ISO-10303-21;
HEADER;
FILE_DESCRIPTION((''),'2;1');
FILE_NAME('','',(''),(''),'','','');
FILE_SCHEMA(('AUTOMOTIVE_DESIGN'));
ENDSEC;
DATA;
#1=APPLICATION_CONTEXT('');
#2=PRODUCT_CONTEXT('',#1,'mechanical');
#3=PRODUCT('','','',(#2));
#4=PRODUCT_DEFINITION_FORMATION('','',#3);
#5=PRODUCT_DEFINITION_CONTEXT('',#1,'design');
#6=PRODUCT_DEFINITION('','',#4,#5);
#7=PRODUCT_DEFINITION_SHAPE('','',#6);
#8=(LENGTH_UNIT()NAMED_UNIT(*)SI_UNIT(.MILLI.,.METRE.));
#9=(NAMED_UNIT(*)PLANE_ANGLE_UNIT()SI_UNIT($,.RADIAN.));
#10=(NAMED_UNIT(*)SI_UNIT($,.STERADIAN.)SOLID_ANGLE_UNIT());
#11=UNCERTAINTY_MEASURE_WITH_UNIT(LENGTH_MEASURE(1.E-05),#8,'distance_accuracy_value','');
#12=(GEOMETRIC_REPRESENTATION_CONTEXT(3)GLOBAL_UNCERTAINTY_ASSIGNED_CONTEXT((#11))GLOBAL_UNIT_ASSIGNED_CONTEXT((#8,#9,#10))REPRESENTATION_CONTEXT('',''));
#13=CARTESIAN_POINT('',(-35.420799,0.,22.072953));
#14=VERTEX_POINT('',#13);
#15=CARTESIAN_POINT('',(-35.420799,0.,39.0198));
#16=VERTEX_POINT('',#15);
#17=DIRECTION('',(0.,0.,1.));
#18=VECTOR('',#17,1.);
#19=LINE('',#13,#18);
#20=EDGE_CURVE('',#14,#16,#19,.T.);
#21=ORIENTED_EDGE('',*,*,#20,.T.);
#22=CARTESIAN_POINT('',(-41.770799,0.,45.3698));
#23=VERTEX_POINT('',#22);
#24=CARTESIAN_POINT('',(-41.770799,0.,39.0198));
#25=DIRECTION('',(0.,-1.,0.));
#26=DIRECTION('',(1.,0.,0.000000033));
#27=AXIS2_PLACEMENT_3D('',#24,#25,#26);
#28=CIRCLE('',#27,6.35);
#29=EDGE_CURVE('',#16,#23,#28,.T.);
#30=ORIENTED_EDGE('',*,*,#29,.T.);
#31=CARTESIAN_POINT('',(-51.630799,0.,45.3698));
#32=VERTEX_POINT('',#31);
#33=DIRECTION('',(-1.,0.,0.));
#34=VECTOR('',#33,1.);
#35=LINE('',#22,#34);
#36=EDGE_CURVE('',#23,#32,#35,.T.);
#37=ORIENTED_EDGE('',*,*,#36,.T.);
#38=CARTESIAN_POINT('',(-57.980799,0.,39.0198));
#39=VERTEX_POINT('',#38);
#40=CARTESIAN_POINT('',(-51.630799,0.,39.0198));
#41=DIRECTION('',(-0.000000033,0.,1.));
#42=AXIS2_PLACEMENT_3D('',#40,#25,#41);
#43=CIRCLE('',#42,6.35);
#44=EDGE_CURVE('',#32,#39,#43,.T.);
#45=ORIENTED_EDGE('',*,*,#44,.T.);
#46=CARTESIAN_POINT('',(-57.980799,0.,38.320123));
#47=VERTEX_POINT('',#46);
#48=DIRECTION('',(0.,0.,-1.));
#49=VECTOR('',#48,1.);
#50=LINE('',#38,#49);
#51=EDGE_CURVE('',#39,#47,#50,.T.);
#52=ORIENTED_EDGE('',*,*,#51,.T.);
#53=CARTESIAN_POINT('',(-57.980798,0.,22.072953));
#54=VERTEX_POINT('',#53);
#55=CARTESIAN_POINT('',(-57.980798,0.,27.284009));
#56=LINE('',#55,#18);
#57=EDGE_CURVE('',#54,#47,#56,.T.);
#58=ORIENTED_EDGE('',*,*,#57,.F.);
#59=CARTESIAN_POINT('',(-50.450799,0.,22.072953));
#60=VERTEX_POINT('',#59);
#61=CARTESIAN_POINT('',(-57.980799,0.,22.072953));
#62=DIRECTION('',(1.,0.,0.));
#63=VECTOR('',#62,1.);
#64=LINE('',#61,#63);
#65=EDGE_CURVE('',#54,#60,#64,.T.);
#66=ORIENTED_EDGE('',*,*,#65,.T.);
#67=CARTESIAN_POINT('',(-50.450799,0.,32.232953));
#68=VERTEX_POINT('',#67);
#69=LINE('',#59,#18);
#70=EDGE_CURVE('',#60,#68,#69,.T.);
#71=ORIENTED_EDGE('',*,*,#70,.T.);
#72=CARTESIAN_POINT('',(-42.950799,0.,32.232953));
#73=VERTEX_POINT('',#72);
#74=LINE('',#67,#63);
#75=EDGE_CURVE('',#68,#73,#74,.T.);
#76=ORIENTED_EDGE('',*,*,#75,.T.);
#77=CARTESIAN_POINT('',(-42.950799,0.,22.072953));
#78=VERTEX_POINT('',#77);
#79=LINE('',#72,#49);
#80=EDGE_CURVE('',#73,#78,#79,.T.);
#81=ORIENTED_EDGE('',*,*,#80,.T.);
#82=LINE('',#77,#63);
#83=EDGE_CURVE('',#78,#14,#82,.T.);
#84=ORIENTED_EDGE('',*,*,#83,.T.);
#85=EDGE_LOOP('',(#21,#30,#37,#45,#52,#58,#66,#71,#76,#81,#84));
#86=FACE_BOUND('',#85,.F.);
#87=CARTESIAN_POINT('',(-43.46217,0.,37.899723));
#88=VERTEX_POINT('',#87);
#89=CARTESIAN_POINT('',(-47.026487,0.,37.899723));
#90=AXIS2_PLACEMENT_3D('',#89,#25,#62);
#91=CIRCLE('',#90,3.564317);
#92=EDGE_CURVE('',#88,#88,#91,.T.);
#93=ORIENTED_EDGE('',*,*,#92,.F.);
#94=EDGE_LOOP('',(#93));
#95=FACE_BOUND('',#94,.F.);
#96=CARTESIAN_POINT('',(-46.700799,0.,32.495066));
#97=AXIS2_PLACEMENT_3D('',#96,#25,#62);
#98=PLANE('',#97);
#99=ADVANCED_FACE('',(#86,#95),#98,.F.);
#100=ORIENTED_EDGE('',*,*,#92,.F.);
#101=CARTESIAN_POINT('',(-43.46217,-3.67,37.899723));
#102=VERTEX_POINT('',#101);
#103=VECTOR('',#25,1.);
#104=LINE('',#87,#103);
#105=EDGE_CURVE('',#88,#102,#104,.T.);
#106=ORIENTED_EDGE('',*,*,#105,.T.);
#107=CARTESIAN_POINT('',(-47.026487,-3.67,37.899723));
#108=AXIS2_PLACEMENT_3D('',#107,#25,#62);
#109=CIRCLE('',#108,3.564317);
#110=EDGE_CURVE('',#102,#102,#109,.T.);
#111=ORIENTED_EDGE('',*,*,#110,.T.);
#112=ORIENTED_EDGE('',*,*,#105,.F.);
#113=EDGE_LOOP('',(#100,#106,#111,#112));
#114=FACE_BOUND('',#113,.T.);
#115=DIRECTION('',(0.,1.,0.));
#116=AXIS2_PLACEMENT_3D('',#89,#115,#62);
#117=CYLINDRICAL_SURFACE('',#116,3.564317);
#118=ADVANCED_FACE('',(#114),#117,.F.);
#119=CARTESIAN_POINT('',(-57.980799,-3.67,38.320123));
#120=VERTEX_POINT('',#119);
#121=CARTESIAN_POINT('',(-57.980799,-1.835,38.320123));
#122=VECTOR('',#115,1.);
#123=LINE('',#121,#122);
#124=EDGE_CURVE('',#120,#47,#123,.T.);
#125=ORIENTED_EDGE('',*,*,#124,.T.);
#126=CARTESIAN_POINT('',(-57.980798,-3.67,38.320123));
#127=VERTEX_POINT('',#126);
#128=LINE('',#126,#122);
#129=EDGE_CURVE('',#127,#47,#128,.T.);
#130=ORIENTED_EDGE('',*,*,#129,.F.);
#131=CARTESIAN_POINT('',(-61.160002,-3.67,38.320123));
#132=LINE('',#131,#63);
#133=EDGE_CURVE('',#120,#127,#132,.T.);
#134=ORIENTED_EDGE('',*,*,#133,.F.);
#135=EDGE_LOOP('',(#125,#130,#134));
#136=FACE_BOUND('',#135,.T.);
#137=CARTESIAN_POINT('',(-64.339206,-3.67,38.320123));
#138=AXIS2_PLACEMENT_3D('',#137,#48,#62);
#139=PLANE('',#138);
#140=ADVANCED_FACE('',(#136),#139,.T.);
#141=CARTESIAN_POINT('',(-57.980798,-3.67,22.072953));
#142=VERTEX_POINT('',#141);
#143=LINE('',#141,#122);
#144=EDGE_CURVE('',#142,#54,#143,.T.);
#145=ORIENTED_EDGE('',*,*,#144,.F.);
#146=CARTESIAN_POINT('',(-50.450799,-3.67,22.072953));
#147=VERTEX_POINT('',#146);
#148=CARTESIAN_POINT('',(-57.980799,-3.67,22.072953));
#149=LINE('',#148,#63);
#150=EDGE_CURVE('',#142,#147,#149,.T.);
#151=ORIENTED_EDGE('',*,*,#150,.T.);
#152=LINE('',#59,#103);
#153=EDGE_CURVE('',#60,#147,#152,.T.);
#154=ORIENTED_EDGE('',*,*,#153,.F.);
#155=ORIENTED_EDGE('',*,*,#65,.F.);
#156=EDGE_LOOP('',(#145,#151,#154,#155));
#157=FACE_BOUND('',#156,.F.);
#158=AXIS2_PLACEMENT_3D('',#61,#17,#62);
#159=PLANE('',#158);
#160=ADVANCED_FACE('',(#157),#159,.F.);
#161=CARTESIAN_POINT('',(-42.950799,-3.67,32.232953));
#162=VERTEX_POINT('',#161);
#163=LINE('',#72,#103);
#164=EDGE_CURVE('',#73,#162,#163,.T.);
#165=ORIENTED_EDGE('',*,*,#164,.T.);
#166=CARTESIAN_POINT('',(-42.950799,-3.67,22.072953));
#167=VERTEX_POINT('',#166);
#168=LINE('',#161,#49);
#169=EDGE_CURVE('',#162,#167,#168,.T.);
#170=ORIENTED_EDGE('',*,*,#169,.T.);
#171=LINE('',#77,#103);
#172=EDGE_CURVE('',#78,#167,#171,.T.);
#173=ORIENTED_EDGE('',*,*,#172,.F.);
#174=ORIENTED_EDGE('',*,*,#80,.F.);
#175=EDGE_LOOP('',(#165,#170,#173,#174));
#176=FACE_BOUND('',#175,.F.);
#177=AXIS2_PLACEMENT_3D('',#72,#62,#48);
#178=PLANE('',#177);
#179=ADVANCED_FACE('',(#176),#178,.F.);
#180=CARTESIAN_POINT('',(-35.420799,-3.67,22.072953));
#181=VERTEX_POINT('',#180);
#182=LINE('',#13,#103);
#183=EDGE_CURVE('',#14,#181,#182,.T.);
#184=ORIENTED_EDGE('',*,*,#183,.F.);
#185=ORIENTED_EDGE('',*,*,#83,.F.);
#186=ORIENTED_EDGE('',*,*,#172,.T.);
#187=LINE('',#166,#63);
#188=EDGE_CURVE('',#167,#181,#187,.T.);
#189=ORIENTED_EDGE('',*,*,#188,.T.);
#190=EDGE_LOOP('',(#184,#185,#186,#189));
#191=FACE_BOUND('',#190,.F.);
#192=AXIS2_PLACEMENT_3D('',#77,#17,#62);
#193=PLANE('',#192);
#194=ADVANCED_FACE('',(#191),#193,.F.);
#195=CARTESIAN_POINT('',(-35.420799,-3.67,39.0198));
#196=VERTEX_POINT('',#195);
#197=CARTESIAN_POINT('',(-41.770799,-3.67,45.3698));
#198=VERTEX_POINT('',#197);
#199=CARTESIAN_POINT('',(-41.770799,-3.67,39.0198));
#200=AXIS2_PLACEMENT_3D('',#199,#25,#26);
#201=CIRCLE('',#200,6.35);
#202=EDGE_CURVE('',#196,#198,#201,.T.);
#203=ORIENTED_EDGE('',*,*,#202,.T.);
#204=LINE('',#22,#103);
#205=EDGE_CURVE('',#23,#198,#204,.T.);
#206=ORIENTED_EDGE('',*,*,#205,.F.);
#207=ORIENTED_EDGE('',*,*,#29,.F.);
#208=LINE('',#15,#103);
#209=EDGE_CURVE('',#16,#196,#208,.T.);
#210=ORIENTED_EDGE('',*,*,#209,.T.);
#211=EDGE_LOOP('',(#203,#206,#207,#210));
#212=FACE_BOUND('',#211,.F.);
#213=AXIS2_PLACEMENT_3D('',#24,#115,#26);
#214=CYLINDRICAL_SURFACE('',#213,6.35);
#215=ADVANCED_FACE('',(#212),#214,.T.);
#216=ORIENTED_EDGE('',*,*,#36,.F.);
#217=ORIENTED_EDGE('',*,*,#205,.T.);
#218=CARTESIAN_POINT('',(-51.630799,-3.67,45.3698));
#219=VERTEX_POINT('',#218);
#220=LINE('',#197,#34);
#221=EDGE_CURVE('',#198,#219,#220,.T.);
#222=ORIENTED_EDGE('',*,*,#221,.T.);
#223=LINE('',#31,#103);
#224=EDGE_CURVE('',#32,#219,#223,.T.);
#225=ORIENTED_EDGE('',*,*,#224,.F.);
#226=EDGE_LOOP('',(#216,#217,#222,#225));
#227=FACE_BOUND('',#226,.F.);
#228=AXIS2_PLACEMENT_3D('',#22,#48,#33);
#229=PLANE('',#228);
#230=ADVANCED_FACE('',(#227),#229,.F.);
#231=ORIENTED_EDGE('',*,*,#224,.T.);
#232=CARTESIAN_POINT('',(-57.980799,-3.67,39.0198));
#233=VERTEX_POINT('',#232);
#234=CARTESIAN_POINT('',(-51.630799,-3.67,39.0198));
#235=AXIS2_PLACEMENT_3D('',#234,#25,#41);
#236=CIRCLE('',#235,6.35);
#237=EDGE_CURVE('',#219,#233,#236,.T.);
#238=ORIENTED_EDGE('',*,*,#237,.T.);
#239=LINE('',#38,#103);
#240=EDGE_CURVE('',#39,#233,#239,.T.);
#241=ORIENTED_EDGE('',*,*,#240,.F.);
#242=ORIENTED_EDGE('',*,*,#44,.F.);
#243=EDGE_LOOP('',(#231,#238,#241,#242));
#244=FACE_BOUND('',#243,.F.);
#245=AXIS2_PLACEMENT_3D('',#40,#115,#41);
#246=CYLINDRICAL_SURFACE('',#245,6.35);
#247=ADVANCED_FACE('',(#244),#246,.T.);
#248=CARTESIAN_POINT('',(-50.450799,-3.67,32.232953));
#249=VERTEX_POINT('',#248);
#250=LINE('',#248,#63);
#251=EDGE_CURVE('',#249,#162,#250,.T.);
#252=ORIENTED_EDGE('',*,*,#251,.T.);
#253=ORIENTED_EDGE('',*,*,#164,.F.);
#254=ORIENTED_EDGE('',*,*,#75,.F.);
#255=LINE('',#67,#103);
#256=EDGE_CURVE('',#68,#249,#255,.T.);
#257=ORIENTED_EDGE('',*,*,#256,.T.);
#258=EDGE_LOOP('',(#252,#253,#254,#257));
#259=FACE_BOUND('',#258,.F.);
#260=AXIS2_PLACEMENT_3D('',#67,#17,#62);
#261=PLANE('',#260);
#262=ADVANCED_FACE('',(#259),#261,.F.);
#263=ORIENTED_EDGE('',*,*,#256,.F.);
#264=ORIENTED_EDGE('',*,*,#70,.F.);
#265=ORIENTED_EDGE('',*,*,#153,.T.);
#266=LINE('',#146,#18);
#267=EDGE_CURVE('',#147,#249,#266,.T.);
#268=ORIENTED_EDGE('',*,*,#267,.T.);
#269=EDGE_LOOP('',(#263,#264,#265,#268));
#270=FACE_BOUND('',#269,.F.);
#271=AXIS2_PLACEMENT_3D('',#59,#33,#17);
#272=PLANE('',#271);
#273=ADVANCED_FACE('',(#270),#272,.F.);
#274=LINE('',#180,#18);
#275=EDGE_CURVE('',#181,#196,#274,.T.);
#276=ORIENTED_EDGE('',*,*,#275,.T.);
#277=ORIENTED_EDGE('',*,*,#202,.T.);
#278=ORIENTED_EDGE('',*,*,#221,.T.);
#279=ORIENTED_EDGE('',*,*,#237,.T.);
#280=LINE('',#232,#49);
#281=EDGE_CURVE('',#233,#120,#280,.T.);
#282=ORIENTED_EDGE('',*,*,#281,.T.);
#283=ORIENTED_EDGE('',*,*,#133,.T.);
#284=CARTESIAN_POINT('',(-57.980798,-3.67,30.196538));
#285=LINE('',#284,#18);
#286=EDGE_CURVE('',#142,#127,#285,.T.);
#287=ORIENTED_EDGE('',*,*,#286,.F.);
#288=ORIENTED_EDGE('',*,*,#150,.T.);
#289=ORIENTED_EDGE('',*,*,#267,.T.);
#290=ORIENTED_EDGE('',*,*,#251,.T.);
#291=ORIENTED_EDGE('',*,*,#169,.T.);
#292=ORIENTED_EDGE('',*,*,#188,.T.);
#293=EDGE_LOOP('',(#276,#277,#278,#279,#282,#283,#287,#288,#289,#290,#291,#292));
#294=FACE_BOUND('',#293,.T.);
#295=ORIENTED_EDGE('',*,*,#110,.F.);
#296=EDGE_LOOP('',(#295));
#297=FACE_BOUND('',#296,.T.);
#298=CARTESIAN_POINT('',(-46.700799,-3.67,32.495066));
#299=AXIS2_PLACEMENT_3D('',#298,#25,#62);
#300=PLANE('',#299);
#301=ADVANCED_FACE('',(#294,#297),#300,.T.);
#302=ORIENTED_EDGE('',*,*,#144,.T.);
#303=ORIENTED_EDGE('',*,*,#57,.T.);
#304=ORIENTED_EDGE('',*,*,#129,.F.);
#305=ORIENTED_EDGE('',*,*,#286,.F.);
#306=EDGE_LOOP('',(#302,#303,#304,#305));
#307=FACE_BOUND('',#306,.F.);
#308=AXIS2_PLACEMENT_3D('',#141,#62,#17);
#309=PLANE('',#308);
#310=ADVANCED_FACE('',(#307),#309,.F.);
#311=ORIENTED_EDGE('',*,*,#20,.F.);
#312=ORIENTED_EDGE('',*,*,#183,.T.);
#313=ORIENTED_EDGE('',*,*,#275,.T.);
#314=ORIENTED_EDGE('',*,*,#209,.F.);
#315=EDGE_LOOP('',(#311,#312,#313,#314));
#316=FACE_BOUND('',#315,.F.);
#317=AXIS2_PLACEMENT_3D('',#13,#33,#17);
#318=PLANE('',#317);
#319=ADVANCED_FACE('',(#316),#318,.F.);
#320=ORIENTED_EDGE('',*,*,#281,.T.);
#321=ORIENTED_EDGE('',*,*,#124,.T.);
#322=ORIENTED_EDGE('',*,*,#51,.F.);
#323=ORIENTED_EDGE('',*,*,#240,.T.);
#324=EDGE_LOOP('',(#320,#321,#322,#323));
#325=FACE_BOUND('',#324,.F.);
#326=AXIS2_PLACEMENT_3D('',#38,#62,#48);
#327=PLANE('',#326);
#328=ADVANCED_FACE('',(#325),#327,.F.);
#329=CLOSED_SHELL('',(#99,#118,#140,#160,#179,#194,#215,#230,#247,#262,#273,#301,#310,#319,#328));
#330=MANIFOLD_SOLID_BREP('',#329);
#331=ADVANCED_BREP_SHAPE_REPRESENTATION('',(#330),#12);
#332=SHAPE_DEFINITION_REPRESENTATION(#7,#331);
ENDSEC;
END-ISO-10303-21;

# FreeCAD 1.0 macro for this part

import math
import FreeCAD as App
import Part
import Sketcher
from FreeCAD import Vector
Q = App.Units.Quantity

doc = App.newDocument("Part")
body = doc.addObject("PartDesign::Body", "Body")

# Sketch on XZ plane
sketch1 = body.newObject("Sketcher::SketchObject", "Sketch")
sketch1.AttachmentSupport = (doc.getObject("XZ_Plane"), [""])
sketch1.MapMode = "FlatFace"
sketch1.addGeometry([
    Part.LineSegment(Vector(-58, 22.1, 0), Vector(-50.5, 22.1, 0)),  # 0
    Part.LineSegment(Vector(-50.5, 22.1, 0), Vector(-50.5, 32.2, 0)),  # 1
    Part.LineSegment(Vector(-50.5, 32.2, 0), Vector(-43, 32.2, 0)),  # 2
    Part.LineSegment(Vector(-43, 32.2, 0), Vector(-43, 22.1, 0)),  # 3
    Part.LineSegment(Vector(-43, 22.1, 0), Vector(-35.4, 22.1, 0)),  # 4
    Part.LineSegment(Vector(-35.4, 22.1, 0), Vector(-35.4, 39, 0)),  # 5
    Part.ArcOfCircle(Part.Circle(Vector(-41.8, 39, 0), Vector(0, 0, 1), 6.4), math.radians(0), math.radians(90)),  # 6
    Part.LineSegment(Vector(-41.8, 45.4, 0), Vector(-51.6, 45.4, 0)),  # 7
    Part.ArcOfCircle(Part.Circle(Vector(-51.6, 39, 0), Vector(0, 0, 1), 6.4), math.radians(90), math.radians(180)),  # 8
    Part.LineSegment(Vector(-58, 39, 0), Vector(-58, 22.1, 0)),  # 9
    Part.Circle(Vector(-47, 37.9, 0), Vector(0, 0, 1), 3.6),  # 10
], False)
sketch1.addConstraint([
    Sketcher.Constraint("Coincident", 0, 2, 1, 1),
    Sketcher.Constraint("Coincident", 1, 2, 2, 1),
    Sketcher.Constraint("Coincident", 2, 2, 3, 1),
    Sketcher.Constraint("Coincident", 3, 2, 4, 1),
    Sketcher.Constraint("Coincident", 4, 2, 5, 1),
    Sketcher.Constraint("Tangent", 5, 2, 6, 1),
    Sketcher.Constraint("Tangent", 6, 2, 7, 1),
    Sketcher.Constraint("Tangent", 7, 2, 8, 1),
    Sketcher.Constraint("Tangent", 8, 2, 9, 1),
    Sketcher.Constraint("Coincident", 9, 2, 0, 1),
    Sketcher.Constraint("Horizontal", 0),
    Sketcher.Constraint("Vertical", 1),
    Sketcher.Constraint("Horizontal", 2),
    Sketcher.Constraint("Vertical", 3),
    Sketcher.Constraint("Horizontal", 4),
    Sketcher.Constraint("Vertical", 5),
    Sketcher.Constraint("Horizontal", 7),
    Sketcher.Constraint("Vertical", 9),
    Sketcher.Constraint("Equal", 6, 8),
    Sketcher.Constraint("Horizontal", 0, 2, 3, 2),
    Sketcher.Constraint("Equal", 0, 4),
    Sketcher.Constraint("Radius", 6, Q("0.25 in")),
    Sketcher.Constraint("DistanceY", 1, 1, 1, 2, Q("0.4 in")),
    Sketcher.Constraint("Diameter", 10, 7.128634),
    Sketcher.Constraint("DistanceX", 0, 1, 0, 2, 7.53),
    Sketcher.Constraint("DistanceX", 2, 1, 2, 2, 7.5),
    Sketcher.Constraint("DistanceX", 6, 3, -1, 1, 41.770799),
    Sketcher.Constraint("DistanceY", -1, 1, 6, 3, 39.0198),
    Sketcher.Constraint("DistanceY", 5, 1, 5, 2, 16.946847),
    Sketcher.Constraint("DistanceX", 8, 3, 10, 3, 4.604312),
    Sketcher.Constraint("DistanceY", 0, 2, 10, 3, 15.82677),
])
pad1 = body.newObject("PartDesign::Pad", "Pad")
pad1.Profile = sketch1
pad1.Length = 3.67

# Sketch on XZ plane
sketch2 = body.newObject("Sketcher::SketchObject", "Sketch001")
sketch2.AttachmentSupport = (doc.getObject("XZ_Plane"), [""])
sketch2.MapMode = "FlatFace"
sketch2.AttachmentOffset = App.Placement(Vector(0, 0, 3.67), App.Rotation())
sketch2.addGeometry([
    Part.LineSegment(Vector(-64, 38, 0), Vector(-64, 22, 0)),  # 0
    Part.LineSegment(Vector(-64, 22, 0), Vector(-58, 22, 0)),  # 1
    Part.LineSegment(Vector(-58, 22, 0), Vector(-58, 38, 0)),  # 2
    Part.LineSegment(Vector(-58, 38, 0), Vector(-64, 38, 0)),  # 3
    Part.LineSegment(Vector(-35, 38, 0), Vector(-35, 22, 0)),  # 4
    Part.LineSegment(Vector(-35, 22, 0), Vector(-29, 22, 0)),  # 5
    Part.LineSegment(Vector(-29, 22, 0), Vector(-29, 38, 0)),  # 6
    Part.LineSegment(Vector(-29, 38, 0), Vector(-35, 38, 0)),  # 7
], False)
sketch2.addConstraint([
    Sketcher.Constraint("Coincident", 0, 2, 1, 1),
    Sketcher.Constraint("Coincident", 1, 2, 2, 1),
    Sketcher.Constraint("Coincident", 2, 2, 3, 1),
    Sketcher.Constraint("Coincident", 3, 2, 0, 1),
    Sketcher.Constraint("Coincident", 4, 2, 5, 1),
    Sketcher.Constraint("Coincident", 5, 2, 6, 1),
    Sketcher.Constraint("Coincident", 6, 2, 7, 1),
    Sketcher.Constraint("Coincident", 7, 2, 4, 1),
    Sketcher.Constraint("Vertical", 0),
    Sketcher.Constraint("Horizontal", 1),
    Sketcher.Constraint("Vertical", 2),
    Sketcher.Constraint("Horizontal", 3),
    Sketcher.Constraint("Vertical", 4),
    Sketcher.Constraint("Horizontal", 5),
    Sketcher.Constraint("Vertical", 6),
    Sketcher.Constraint("Horizontal", 7),
    Sketcher.Constraint("Horizontal", 1, 2, 4, 2),
    Sketcher.Constraint("Horizontal", 3, 2, 6, 2),
    Sketcher.Constraint("DistanceX", 0, 2, 5, 2, Q("1.4095001 in")),
    Sketcher.Constraint("DistanceY", 0, 2, 0, 1, 16.24717),
    Sketcher.Constraint("DistanceX", 1, 2, -1, 1, 57.980798),
    Sketcher.Constraint("DistanceX", 4, 2, -1, 1, 35.420798),
    Sketcher.Constraint("DistanceX", 1, 1, 1, 2, 6.358407),
    Sketcher.Constraint("DistanceY", -1, 1, 0, 2, 22.072953),
])
pocket1 = body.newObject("PartDesign::Pocket", "Pocket")
pocket1.Profile = sketch2
pocket1.Type = "ThroughAll"

doc.recompute()
